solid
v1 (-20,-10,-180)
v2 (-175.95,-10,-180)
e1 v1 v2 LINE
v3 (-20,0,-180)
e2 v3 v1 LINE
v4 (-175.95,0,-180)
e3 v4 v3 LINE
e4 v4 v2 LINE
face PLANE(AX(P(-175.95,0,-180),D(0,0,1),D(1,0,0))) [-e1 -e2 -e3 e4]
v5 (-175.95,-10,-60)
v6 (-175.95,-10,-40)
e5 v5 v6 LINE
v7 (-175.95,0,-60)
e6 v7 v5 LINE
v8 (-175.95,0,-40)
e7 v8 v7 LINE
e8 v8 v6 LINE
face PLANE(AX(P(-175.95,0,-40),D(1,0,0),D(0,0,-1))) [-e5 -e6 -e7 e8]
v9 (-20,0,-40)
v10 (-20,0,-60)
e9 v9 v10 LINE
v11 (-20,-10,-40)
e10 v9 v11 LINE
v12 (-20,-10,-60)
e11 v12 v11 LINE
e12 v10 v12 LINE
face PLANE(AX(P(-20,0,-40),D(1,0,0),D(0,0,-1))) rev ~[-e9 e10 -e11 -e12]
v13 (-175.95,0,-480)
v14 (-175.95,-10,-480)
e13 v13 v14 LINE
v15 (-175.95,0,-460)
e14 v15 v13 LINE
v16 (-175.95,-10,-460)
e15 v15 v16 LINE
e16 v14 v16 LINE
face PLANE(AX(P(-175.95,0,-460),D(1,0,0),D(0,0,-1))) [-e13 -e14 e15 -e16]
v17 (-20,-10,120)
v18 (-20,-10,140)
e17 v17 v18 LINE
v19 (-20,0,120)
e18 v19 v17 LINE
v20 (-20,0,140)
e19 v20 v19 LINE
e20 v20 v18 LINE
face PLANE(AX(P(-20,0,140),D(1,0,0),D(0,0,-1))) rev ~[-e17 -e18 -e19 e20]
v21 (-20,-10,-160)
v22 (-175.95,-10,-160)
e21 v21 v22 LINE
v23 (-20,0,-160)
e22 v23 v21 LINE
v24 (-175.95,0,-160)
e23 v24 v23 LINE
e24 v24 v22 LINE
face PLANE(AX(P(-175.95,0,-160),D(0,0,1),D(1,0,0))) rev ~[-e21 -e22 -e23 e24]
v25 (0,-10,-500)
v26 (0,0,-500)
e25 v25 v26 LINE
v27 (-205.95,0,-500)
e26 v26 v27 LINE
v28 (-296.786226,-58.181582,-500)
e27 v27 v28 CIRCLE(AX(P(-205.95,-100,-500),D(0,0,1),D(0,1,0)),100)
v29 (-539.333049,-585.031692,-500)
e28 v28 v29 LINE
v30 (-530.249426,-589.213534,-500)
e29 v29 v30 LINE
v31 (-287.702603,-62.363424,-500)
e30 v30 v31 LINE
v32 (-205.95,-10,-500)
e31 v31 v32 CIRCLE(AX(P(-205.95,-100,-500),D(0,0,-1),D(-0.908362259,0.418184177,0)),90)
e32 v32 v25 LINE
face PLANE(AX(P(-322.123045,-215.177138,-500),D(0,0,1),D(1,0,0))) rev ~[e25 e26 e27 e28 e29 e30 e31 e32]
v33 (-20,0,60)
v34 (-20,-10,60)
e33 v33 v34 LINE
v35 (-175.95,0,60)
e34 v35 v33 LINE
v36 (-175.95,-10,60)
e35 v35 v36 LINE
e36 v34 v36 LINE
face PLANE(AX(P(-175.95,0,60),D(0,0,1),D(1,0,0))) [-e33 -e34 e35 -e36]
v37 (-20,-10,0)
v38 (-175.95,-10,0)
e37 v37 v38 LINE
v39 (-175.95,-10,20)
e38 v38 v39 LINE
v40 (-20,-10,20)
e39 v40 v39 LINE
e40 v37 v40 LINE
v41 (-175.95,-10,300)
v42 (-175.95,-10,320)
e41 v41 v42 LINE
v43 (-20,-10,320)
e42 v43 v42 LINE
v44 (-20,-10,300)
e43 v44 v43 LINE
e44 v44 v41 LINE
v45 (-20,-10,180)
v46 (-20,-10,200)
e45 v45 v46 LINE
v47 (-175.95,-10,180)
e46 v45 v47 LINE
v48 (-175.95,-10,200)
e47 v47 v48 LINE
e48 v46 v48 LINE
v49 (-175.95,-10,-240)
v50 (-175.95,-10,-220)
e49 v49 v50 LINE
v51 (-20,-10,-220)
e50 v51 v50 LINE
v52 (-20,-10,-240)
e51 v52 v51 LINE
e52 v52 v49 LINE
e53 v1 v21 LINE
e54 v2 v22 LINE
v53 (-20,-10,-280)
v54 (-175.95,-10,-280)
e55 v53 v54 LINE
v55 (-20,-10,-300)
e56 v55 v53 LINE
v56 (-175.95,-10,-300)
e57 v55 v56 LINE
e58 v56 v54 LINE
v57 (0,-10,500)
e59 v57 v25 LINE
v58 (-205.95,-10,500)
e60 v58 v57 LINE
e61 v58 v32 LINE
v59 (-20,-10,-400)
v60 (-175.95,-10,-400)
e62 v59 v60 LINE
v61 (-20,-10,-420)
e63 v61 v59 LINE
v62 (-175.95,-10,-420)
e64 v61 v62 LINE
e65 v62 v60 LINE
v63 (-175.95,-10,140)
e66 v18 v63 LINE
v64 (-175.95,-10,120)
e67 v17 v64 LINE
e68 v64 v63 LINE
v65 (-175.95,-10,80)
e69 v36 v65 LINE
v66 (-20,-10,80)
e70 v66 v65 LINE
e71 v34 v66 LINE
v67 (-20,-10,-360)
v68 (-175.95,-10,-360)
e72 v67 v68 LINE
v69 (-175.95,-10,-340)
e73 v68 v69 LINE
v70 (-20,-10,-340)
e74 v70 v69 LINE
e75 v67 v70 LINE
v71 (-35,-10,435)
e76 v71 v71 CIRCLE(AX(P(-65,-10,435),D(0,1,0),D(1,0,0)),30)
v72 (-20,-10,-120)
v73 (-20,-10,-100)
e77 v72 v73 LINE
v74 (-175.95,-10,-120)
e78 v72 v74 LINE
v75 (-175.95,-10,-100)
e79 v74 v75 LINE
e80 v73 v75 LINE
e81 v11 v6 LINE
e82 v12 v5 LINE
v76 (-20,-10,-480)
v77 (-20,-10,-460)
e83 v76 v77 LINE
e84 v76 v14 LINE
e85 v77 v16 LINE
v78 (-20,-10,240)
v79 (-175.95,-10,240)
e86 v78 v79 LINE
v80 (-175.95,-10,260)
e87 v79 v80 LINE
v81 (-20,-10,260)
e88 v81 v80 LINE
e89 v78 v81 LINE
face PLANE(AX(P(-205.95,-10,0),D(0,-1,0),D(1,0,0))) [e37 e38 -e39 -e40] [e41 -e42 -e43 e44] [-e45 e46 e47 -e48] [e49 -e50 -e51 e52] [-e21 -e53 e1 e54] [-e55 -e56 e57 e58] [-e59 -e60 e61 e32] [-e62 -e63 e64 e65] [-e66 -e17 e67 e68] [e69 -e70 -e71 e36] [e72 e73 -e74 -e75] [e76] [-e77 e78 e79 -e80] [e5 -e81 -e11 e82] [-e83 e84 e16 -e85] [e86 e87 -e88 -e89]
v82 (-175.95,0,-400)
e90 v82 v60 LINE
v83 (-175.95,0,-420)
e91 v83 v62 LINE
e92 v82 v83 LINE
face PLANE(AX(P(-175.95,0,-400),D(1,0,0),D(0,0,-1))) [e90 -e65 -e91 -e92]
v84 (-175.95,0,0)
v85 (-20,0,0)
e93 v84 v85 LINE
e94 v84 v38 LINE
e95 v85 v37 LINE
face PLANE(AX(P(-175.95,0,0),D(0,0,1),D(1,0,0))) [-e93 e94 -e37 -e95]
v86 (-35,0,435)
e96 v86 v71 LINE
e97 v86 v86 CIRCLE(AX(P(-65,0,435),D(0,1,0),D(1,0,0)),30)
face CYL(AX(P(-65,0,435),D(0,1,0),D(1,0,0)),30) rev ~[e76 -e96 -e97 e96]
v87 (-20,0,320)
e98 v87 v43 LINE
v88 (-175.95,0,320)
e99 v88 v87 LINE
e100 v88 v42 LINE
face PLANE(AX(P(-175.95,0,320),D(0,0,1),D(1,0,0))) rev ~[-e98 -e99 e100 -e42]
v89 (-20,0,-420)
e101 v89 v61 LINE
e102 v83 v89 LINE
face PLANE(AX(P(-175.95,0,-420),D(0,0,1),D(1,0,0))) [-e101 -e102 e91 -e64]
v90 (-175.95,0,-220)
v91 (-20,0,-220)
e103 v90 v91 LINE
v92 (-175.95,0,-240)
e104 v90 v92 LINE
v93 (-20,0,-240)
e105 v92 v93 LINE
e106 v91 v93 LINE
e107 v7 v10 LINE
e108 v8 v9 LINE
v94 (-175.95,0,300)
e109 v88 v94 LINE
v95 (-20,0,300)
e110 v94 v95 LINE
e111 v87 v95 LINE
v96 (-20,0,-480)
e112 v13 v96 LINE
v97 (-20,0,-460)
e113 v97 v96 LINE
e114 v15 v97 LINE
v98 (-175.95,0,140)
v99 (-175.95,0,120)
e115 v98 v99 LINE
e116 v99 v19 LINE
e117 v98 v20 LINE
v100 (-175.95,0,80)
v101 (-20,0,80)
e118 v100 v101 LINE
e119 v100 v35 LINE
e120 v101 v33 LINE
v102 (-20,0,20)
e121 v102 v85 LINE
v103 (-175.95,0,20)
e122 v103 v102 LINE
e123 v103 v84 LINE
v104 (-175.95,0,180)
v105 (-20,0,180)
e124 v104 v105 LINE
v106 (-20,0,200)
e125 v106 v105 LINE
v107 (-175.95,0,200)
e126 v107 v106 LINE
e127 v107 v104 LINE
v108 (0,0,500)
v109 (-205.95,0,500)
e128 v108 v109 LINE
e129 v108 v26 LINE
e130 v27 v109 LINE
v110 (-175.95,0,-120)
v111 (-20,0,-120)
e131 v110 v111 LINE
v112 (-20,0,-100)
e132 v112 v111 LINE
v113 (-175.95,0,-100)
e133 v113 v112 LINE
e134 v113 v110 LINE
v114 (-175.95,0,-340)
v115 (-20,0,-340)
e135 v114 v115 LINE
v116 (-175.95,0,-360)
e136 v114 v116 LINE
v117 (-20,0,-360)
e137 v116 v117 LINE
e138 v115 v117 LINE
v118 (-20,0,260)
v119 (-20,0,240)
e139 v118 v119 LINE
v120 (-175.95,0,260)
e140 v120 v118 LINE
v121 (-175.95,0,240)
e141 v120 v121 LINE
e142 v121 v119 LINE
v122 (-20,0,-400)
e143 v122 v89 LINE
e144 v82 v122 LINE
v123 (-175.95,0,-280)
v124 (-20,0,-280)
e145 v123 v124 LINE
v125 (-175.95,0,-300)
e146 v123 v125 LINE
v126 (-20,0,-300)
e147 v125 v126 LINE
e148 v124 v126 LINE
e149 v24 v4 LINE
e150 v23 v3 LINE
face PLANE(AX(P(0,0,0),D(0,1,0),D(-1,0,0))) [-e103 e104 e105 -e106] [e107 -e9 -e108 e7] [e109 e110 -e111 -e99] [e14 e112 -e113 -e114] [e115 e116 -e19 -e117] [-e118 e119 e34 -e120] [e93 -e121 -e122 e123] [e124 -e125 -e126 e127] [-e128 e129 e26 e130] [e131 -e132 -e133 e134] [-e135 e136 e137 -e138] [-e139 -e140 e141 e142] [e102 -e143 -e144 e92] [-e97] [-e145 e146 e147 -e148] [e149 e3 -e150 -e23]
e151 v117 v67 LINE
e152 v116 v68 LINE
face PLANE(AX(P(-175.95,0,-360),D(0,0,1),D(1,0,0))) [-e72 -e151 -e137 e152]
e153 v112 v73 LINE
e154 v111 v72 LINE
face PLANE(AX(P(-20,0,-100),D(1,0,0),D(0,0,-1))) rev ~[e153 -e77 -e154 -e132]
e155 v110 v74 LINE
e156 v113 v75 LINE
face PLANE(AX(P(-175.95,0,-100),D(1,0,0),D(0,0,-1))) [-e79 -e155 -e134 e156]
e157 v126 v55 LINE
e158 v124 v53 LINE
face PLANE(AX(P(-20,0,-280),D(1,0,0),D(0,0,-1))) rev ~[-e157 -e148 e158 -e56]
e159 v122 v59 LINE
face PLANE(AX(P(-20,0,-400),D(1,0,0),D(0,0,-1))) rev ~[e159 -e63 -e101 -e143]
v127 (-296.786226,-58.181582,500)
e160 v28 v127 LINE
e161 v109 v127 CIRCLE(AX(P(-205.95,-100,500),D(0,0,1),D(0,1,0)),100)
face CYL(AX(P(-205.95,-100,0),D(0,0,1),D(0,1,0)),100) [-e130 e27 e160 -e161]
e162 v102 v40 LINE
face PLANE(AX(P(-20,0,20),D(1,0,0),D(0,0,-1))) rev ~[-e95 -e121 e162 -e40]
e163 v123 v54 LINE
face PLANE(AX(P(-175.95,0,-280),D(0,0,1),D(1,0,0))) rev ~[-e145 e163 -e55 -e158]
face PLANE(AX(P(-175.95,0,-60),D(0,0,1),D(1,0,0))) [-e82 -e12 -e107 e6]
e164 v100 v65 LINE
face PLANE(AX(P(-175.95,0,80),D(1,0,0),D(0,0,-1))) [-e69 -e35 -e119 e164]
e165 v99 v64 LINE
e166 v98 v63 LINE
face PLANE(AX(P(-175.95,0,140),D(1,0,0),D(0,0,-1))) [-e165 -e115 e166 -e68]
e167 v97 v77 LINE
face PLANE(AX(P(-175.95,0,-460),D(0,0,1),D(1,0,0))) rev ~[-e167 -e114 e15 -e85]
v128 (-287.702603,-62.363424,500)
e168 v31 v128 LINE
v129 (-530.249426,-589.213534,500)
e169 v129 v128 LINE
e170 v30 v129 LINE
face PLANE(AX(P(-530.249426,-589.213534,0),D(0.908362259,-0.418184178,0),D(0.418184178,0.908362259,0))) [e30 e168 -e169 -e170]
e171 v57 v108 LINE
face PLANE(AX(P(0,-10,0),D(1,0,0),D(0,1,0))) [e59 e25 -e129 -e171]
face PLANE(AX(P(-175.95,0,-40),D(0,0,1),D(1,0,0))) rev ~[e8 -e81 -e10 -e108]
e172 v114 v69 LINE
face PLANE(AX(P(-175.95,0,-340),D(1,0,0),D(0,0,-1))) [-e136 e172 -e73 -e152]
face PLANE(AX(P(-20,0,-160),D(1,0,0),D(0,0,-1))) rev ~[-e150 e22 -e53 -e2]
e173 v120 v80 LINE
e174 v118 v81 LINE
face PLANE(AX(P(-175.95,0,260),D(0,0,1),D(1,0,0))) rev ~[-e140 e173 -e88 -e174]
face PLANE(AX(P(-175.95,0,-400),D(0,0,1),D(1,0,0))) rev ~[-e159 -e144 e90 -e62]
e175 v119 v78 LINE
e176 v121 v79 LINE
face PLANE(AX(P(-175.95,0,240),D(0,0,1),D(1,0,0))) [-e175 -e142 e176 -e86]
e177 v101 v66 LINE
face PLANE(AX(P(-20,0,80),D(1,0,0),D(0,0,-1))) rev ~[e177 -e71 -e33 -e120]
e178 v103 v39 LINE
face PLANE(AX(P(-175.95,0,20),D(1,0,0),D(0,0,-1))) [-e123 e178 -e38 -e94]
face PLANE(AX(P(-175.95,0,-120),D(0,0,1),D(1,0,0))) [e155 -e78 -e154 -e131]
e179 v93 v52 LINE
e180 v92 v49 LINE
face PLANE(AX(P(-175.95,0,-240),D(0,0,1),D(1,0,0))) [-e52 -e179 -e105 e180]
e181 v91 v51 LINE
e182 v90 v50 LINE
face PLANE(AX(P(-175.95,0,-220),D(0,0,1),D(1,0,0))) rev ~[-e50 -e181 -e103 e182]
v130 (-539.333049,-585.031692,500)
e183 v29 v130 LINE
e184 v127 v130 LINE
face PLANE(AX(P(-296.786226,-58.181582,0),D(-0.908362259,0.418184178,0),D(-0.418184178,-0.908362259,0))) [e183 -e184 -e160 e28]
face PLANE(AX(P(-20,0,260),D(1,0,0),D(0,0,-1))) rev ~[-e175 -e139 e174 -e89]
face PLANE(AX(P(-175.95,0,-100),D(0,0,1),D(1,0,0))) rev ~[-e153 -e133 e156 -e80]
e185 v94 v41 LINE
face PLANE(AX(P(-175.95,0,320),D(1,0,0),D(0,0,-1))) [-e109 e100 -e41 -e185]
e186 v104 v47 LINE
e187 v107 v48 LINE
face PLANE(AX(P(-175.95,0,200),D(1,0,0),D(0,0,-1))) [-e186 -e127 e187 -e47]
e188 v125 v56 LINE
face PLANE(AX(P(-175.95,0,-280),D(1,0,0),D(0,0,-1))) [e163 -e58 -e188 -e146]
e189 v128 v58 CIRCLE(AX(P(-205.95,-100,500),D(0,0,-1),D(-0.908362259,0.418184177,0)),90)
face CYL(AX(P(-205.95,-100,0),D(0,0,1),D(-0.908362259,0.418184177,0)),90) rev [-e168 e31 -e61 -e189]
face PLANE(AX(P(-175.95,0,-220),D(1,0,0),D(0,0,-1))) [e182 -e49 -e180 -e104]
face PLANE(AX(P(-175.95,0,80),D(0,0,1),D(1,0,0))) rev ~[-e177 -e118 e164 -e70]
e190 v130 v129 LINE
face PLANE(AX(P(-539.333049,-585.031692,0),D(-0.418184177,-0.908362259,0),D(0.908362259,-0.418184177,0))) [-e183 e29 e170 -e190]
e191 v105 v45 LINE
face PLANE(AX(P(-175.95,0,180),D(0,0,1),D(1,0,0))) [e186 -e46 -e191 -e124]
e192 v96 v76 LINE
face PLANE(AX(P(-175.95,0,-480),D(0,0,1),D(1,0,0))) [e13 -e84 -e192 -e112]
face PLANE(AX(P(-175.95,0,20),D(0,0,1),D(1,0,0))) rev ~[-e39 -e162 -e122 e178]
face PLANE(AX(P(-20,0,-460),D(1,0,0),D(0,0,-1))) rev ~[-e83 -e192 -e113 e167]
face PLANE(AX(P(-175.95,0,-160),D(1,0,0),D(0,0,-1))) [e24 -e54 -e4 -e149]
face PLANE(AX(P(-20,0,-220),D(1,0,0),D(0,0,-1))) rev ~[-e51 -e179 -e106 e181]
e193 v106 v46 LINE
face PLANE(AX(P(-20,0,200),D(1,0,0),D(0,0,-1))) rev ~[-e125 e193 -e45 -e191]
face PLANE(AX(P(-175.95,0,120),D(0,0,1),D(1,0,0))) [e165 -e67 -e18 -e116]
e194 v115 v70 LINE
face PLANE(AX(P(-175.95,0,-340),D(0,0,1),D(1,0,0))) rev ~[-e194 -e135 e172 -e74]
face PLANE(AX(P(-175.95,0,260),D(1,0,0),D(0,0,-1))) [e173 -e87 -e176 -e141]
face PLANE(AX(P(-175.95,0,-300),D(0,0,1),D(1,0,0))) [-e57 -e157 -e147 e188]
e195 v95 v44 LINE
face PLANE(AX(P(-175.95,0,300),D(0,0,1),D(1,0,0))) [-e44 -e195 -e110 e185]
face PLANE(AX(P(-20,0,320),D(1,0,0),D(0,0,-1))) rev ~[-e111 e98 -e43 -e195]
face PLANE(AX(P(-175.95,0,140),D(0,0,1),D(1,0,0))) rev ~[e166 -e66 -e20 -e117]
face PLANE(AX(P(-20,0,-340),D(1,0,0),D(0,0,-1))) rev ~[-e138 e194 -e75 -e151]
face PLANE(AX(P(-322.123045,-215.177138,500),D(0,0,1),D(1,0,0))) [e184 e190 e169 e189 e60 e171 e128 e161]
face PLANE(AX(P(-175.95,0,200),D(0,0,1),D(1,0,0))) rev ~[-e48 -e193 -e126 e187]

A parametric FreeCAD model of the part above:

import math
import FreeCAD as App
import Part
import Sketcher

V = App.Vector
Q = App.Units.Quantity

doc = App.newDocument("Part")
body = doc.addObject("PartDesign::Body", "Body")

sketch1 = body.newObject("Sketcher::SketchObject", "Sketch")
sketch1.AttachmentSupport = (doc.getObject("XY_Plane"), [""])
sketch1.MapMode = "FlatFace"
sketch1.addGeometry([
    Part.LineSegment(V(0, 0, 0), V(-206, 0, 0)),
    Part.ArcOfCircle(Part.Circle(V(-206, -100, 0), V(0, 0, 1), 100), math.radians(90), math.radians(155)),
    Part.LineSegment(V(-297, -58, 0), V(-539, -585, 0)),
    Part.LineSegment(V(-539, -585, 0), V(-530, -589, 0)),
    Part.LineSegment(V(-530, -589, 0), V(-288, -62, 0)),
    Part.ArcOfCircle(Part.Circle(V(-206, -100, 0), V(0, 0, 1), 90), math.radians(90), math.radians(155)),
    Part.LineSegment(V(-206, -10, 0), V(0, -10, 0)),
    Part.LineSegment(V(0, -10, 0), V(0, 0, 0)),
], False)
sketch1.addConstraint([
    Sketcher.Constraint("Tangent", 0, 2, 1, 1),
    Sketcher.Constraint("Tangent", 1, 2, 2, 1),
    Sketcher.Constraint("Coincident", 2, 2, 3, 1),
    Sketcher.Constraint("Coincident", 3, 2, 4, 1),
    Sketcher.Constraint("Tangent", 4, 2, 5, 2),
    Sketcher.Constraint("Tangent", 5, 1, 6, 1),
    Sketcher.Constraint("Coincident", 6, 2, 7, 1),
    Sketcher.Constraint("Coincident", 7, 2, 0, 1),
    Sketcher.Constraint("Horizontal", 0),
    Sketcher.Constraint("Horizontal", 6),
    Sketcher.Constraint("Vertical", 7),
    Sketcher.Constraint("Coincident", 7, 2, -1, 1),
    Sketcher.Constraint("Coincident", 5, 3, 1, 3),
    Sketcher.Constraint("Perpendicular", 2, 3),
    Sketcher.Constraint("Perpendicular", 3, 4),
    Sketcher.Constraint("Radius", 1, Q("100 mm")),
    Sketcher.Constraint("Radius", 5, Q("90 mm")),
    Sketcher.Constraint("Distance", 2, Q("580 mm")),
    Sketcher.Constraint("DistanceX", 0, 2, 0, 1, Q("205.95 mm")),
    Sketcher.Constraint("Angle", 2, Q("-114.72 deg")),
])
pad1 = body.newObject("PartDesign::Pad", "Pad")
pad1.Profile = sketch1
pad1.Length = 1000
pad1.Midplane = True

sketch2 = body.newObject("Sketcher::SketchObject", "Sketch001")
sketch2.AttachmentSupport = (doc.getObject("XZ_Plane"), [""])
sketch2.MapMode = "FlatFace"
sketch2.addGeometry([
    Part.LineSegment(V(-176, -480, 0), V(-176, -460, 0)),
    Part.LineSegment(V(-176, -460, 0), V(-20, -460, 0)),
    Part.LineSegment(V(-20, -460, 0), V(-20, -480, 0)),
    Part.LineSegment(V(-20, -480, 0), V(-176, -480, 0)),
], False)
sketch2.addConstraint([
    Sketcher.Constraint("Coincident", 0, 2, 1, 1),
    Sketcher.Constraint("Coincident", 1, 2, 2, 1),
    Sketcher.Constraint("Coincident", 2, 2, 3, 1),
    Sketcher.Constraint("Coincident", 3, 2, 0, 1),
    Sketcher.Constraint("Vertical", 0),
    Sketcher.Constraint("Horizontal", 1),
    Sketcher.Constraint("Vertical", 2),
    Sketcher.Constraint("Horizontal", 3),
    Sketcher.Constraint("DistanceY", 0, 1, 0, 2, Q("20 mm")),
    Sketcher.Constraint("DistanceY", 0, 2, -1, 1, Q("460 mm")),
    Sketcher.Constraint("DistanceX", 1, 2, -1, 1, Q("20 mm")),
    Sketcher.Constraint("DistanceX", 1, 1, 1, 2, Q("155.95 mm")),
])
pocket1 = body.newObject("PartDesign::Pocket", "Pocket")
pocket1.Profile = sketch2
pocket1.Type = "ThroughAll"
pocket1.Reversed = True
doc.recompute()

linearpattern = body.newObject("PartDesign::LinearPattern", "LinearPattern")
linearpattern.Originals = [pocket1]
linearpattern.Direction = (doc.getObject("Z_Axis"), [""])
linearpattern.Mode = "offset"
linearpattern.Offset = 60
linearpattern.Occurrences = 14
body.Tip = linearpattern

sketch3 = body.newObject("Sketcher::SketchObject", "Sketch002")
sketch3.AttachmentSupport = (doc.getObject("XZ_Plane"), [""])
sketch3.MapMode = "FlatFace"
sketch3.addGeometry(Part.Circle(V(-65, 435, 0), V(0, 0, 1), 30), False)
sketch3.addConstraint([
    Sketcher.Constraint("Diameter", 0, Q("60 mm")),
    Sketcher.Constraint("DistanceX", 0, 3, -1, 1, Q("65 mm")),
    Sketcher.Constraint("DistanceY", -1, 1, 0, 3, Q("435 mm")),
])
pocket2 = body.newObject("PartDesign::Pocket", "Pocket001")
pocket2.Profile = sketch3
pocket2.Type = "ThroughAll"
pocket2.Reversed = True

doc.recompute()
